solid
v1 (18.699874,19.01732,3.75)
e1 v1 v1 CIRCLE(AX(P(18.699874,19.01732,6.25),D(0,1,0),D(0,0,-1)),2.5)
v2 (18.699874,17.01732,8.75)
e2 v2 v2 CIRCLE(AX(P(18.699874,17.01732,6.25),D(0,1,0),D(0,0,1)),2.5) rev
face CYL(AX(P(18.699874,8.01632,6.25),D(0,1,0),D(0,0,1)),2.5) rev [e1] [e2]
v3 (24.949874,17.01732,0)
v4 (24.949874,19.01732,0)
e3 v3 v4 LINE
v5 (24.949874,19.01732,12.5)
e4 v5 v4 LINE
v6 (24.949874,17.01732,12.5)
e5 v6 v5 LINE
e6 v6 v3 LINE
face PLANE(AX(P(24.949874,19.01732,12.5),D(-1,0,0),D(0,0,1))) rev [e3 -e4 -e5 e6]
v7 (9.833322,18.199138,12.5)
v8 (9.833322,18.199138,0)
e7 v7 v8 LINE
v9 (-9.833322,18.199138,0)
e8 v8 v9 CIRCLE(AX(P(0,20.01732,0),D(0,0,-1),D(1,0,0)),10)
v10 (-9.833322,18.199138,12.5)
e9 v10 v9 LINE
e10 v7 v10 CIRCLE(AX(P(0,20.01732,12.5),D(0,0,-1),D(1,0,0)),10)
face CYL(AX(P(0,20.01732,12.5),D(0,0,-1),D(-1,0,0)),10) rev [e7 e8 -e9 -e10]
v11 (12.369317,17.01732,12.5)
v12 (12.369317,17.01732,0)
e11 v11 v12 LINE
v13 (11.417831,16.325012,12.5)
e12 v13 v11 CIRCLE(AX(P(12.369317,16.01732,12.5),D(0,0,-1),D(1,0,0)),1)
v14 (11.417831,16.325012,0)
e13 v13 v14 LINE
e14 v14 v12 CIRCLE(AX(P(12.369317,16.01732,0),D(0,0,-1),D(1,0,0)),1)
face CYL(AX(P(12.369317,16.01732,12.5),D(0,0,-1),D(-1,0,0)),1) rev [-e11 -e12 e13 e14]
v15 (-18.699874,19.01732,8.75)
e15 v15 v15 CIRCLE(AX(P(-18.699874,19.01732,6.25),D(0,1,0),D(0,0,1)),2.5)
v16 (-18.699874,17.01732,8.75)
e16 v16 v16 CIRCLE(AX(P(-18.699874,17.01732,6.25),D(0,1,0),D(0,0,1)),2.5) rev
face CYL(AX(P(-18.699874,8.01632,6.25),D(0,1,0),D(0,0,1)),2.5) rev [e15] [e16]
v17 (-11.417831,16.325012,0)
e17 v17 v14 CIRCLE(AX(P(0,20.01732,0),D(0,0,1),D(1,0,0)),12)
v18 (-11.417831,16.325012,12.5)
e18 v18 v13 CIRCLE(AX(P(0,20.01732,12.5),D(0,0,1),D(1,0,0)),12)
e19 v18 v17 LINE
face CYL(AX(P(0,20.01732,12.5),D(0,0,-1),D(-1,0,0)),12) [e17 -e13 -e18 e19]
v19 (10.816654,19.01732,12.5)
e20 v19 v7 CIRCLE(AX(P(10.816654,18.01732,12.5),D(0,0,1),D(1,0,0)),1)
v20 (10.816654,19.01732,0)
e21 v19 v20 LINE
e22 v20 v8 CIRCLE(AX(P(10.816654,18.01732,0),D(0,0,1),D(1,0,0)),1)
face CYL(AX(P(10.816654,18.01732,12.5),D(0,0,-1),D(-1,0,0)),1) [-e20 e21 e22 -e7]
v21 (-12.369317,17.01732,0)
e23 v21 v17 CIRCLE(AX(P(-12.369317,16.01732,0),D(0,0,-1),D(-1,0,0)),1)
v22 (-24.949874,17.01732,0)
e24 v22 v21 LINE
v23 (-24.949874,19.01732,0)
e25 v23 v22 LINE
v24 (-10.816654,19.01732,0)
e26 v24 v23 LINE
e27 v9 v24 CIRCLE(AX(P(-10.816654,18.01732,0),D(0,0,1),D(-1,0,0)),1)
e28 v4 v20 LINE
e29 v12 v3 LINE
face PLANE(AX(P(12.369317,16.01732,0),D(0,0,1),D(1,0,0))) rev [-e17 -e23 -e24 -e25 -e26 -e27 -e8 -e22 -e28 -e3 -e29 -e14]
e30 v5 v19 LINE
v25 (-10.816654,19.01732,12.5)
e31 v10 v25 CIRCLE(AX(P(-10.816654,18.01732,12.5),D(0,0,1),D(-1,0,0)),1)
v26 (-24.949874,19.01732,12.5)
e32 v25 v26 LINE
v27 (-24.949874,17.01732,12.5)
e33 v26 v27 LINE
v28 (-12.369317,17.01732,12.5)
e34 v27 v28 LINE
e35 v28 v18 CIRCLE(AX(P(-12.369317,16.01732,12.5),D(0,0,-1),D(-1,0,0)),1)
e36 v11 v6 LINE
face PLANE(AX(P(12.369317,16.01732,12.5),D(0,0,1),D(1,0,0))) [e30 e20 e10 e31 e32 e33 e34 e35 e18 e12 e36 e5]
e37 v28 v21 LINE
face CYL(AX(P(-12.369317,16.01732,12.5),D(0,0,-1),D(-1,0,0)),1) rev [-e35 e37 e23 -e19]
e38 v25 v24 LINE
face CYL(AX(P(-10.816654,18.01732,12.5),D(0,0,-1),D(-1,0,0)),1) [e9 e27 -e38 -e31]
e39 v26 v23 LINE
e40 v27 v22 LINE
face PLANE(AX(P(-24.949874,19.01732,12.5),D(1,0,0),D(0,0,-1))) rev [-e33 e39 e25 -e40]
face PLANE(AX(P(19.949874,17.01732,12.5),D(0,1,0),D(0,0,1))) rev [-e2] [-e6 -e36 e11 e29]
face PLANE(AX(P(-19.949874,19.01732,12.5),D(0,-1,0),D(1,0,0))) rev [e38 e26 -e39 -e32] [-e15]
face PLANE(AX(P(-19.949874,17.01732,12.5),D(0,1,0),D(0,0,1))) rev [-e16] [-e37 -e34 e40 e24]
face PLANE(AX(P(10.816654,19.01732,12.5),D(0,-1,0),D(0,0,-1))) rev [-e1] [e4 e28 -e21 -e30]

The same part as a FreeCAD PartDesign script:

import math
import FreeCAD as App
import Part
import Sketcher
from FreeCAD import Vector

doc = App.newDocument("Part")
body = doc.addObject("PartDesign::Body", "Body")

sketch1 = body.newObject("Sketcher::SketchObject", "Sketch")
sketch1.AttachmentSupport = (doc.getObject("XY_Plane"), [""])
sketch1.MapMode = "FlatFace"
sketch1.addGeometry([
    Part.LineSegment(Vector(-10.8, 19, 0), Vector(-24.9, 19, 0)),
    Part.LineSegment(Vector(-24.9, 19, 0), Vector(-24.9, 17, 0)),
    Part.LineSegment(Vector(-24.9, 17, 0), Vector(-12.4, 17, 0)),
    Part.ArcOfCircle(Part.Circle(Vector(-12.4, 16, 0), Vector(0, 0, 1), 1), math.radians(18), math.radians(90)),
    Part.ArcOfCircle(Part.Circle(Vector(0, 20, 0), Vector(0, 0, 1), 12), math.radians(-162), math.radians(-18)),
    Part.ArcOfCircle(Part.Circle(Vector(12.4, 16, 0), Vector(0, 0, 1), 1), math.radians(90), math.radians(162)),
    Part.LineSegment(Vector(12.4, 17, 0), Vector(24.9, 17, 0)),
    Part.LineSegment(Vector(24.9, 17, 0), Vector(24.9, 19, 0)),
    Part.LineSegment(Vector(24.9, 19, 0), Vector(10.8, 19, 0)),
    Part.ArcOfCircle(Part.Circle(Vector(10.8, 18, 0), Vector(0, 0, 1), 1), math.radians(90), math.radians(170)),
    Part.ArcOfCircle(Part.Circle(Vector(0, 20, 0), Vector(0, 0, 1), 10), math.radians(-170), math.radians(-10)),
    Part.ArcOfCircle(Part.Circle(Vector(-10.8, 18, 0), Vector(0, 0, 1), 1), math.radians(10), math.radians(90)),
], False)
sketch1.addConstraint([
    Sketcher.Constraint("Coincident", 0, 2, 1, 1),
    Sketcher.Constraint("Coincident", 1, 2, 2, 1),
    Sketcher.Constraint("Tangent", 2, 2, 3, 2),
    Sketcher.Constraint("Tangent", 3, 1, 4, 1),
    Sketcher.Constraint("Tangent", 4, 2, 5, 2),
    Sketcher.Constraint("Tangent", 5, 1, 6, 1),
    Sketcher.Constraint("Coincident", 6, 2, 7, 1),
    Sketcher.Constraint("Coincident", 7, 2, 8, 1),
    Sketcher.Constraint("Tangent", 8, 2, 9, 1),
    Sketcher.Constraint("Tangent", 9, 2, 10, 2),
    Sketcher.Constraint("Tangent", 10, 1, 11, 1),
    Sketcher.Constraint("Tangent", 11, 2, 0, 1),
    Sketcher.Constraint("Horizontal", 0),
    Sketcher.Constraint("Vertical", 1),
    Sketcher.Constraint("Horizontal", 2),
    Sketcher.Constraint("Horizontal", 6),
    Sketcher.Constraint("Vertical", 7),
    Sketcher.Constraint("Horizontal", 8),
    Sketcher.Constraint("Coincident", 10, 3, 4, 3),
    Sketcher.Constraint("Equal", 3, 5),
    Sketcher.Constraint("Equal", 5, 9),
    Sketcher.Constraint("Equal", 9, 11),
    Sketcher.Constraint("Symmetric", 3, 3, 5, 3, -2),
    Sketcher.Constraint("Symmetric", 0, 2, 7, 2, -2),
    Sketcher.Constraint("Radius", 3, 1.0),
    Sketcher.Constraint("Radius", 4, 12.0),
    Sketcher.Constraint("Radius", 10, 10.0),
    Sketcher.Constraint("DistanceY", 1, 2, 1, 1, 2.0),
    Sketcher.Constraint("DistanceY", 3, 3, 4, 3, 4.0),
    Sketcher.Constraint("DistanceX", 0, 2, 0, 1, 14.133221),
    Sketcher.Constraint("DistanceY", -1, 1, 3, 3, 16.01732),
])
pad1 = body.newObject("PartDesign::Pad", "Pad")
pad1.Profile = sketch1
pad1.Length = 12.5

sketch2 = body.newObject("Sketcher::SketchObject", "Sketch001")
sketch2.AttachmentSupport = (doc.getObject("XZ_Plane"), [""])
sketch2.MapMode = "FlatFace"
sketch2.AttachmentOffset = App.Placement(Vector(0, 0, -19.01732), App.Rotation())
sketch2.addGeometry(Part.Circle(Vector(-18.7, 6.2, 0), Vector(0, 0, 1), 2.5), False)
sketch2.addConstraint([
    Sketcher.Constraint("Diameter", 0, 5.0),
    Sketcher.Constraint("DistanceY", -1, 1, 0, 3, 6.25),
    Sketcher.Constraint("DistanceX", 0, 3, -1, 1, 18.699874),
])
pocket1 = body.newObject("PartDesign::Pocket", "Pocket")
pocket1.Profile = sketch2
pocket1.Type = "UpToFirst"
pocket1.Reversed = True

sketch3 = body.newObject("Sketcher::SketchObject", "Sketch002")
sketch3.AttachmentSupport = (doc.getObject("XZ_Plane"), [""])
sketch3.MapMode = "FlatFace"
sketch3.AttachmentOffset = App.Placement(Vector(0, 0, -19.01732), App.Rotation())
sketch3.addGeometry(Part.Circle(Vector(18.7, 6.2, 0), Vector(0, 0, 1), 2.5), False)
sketch3.addConstraint([
    Sketcher.Constraint("Diameter", 0, 5.0),
    Sketcher.Constraint("DistanceY", -1, 1, 0, 3, 6.25),
    Sketcher.Constraint("DistanceX", -1, 1, 0, 3, 18.699874),
])
pocket2 = body.newObject("PartDesign::Pocket", "Pocket001")
pocket2.Profile = sketch3
pocket2.Type = "UpToFirst"
pocket2.Reversed = True

doc.recompute()
